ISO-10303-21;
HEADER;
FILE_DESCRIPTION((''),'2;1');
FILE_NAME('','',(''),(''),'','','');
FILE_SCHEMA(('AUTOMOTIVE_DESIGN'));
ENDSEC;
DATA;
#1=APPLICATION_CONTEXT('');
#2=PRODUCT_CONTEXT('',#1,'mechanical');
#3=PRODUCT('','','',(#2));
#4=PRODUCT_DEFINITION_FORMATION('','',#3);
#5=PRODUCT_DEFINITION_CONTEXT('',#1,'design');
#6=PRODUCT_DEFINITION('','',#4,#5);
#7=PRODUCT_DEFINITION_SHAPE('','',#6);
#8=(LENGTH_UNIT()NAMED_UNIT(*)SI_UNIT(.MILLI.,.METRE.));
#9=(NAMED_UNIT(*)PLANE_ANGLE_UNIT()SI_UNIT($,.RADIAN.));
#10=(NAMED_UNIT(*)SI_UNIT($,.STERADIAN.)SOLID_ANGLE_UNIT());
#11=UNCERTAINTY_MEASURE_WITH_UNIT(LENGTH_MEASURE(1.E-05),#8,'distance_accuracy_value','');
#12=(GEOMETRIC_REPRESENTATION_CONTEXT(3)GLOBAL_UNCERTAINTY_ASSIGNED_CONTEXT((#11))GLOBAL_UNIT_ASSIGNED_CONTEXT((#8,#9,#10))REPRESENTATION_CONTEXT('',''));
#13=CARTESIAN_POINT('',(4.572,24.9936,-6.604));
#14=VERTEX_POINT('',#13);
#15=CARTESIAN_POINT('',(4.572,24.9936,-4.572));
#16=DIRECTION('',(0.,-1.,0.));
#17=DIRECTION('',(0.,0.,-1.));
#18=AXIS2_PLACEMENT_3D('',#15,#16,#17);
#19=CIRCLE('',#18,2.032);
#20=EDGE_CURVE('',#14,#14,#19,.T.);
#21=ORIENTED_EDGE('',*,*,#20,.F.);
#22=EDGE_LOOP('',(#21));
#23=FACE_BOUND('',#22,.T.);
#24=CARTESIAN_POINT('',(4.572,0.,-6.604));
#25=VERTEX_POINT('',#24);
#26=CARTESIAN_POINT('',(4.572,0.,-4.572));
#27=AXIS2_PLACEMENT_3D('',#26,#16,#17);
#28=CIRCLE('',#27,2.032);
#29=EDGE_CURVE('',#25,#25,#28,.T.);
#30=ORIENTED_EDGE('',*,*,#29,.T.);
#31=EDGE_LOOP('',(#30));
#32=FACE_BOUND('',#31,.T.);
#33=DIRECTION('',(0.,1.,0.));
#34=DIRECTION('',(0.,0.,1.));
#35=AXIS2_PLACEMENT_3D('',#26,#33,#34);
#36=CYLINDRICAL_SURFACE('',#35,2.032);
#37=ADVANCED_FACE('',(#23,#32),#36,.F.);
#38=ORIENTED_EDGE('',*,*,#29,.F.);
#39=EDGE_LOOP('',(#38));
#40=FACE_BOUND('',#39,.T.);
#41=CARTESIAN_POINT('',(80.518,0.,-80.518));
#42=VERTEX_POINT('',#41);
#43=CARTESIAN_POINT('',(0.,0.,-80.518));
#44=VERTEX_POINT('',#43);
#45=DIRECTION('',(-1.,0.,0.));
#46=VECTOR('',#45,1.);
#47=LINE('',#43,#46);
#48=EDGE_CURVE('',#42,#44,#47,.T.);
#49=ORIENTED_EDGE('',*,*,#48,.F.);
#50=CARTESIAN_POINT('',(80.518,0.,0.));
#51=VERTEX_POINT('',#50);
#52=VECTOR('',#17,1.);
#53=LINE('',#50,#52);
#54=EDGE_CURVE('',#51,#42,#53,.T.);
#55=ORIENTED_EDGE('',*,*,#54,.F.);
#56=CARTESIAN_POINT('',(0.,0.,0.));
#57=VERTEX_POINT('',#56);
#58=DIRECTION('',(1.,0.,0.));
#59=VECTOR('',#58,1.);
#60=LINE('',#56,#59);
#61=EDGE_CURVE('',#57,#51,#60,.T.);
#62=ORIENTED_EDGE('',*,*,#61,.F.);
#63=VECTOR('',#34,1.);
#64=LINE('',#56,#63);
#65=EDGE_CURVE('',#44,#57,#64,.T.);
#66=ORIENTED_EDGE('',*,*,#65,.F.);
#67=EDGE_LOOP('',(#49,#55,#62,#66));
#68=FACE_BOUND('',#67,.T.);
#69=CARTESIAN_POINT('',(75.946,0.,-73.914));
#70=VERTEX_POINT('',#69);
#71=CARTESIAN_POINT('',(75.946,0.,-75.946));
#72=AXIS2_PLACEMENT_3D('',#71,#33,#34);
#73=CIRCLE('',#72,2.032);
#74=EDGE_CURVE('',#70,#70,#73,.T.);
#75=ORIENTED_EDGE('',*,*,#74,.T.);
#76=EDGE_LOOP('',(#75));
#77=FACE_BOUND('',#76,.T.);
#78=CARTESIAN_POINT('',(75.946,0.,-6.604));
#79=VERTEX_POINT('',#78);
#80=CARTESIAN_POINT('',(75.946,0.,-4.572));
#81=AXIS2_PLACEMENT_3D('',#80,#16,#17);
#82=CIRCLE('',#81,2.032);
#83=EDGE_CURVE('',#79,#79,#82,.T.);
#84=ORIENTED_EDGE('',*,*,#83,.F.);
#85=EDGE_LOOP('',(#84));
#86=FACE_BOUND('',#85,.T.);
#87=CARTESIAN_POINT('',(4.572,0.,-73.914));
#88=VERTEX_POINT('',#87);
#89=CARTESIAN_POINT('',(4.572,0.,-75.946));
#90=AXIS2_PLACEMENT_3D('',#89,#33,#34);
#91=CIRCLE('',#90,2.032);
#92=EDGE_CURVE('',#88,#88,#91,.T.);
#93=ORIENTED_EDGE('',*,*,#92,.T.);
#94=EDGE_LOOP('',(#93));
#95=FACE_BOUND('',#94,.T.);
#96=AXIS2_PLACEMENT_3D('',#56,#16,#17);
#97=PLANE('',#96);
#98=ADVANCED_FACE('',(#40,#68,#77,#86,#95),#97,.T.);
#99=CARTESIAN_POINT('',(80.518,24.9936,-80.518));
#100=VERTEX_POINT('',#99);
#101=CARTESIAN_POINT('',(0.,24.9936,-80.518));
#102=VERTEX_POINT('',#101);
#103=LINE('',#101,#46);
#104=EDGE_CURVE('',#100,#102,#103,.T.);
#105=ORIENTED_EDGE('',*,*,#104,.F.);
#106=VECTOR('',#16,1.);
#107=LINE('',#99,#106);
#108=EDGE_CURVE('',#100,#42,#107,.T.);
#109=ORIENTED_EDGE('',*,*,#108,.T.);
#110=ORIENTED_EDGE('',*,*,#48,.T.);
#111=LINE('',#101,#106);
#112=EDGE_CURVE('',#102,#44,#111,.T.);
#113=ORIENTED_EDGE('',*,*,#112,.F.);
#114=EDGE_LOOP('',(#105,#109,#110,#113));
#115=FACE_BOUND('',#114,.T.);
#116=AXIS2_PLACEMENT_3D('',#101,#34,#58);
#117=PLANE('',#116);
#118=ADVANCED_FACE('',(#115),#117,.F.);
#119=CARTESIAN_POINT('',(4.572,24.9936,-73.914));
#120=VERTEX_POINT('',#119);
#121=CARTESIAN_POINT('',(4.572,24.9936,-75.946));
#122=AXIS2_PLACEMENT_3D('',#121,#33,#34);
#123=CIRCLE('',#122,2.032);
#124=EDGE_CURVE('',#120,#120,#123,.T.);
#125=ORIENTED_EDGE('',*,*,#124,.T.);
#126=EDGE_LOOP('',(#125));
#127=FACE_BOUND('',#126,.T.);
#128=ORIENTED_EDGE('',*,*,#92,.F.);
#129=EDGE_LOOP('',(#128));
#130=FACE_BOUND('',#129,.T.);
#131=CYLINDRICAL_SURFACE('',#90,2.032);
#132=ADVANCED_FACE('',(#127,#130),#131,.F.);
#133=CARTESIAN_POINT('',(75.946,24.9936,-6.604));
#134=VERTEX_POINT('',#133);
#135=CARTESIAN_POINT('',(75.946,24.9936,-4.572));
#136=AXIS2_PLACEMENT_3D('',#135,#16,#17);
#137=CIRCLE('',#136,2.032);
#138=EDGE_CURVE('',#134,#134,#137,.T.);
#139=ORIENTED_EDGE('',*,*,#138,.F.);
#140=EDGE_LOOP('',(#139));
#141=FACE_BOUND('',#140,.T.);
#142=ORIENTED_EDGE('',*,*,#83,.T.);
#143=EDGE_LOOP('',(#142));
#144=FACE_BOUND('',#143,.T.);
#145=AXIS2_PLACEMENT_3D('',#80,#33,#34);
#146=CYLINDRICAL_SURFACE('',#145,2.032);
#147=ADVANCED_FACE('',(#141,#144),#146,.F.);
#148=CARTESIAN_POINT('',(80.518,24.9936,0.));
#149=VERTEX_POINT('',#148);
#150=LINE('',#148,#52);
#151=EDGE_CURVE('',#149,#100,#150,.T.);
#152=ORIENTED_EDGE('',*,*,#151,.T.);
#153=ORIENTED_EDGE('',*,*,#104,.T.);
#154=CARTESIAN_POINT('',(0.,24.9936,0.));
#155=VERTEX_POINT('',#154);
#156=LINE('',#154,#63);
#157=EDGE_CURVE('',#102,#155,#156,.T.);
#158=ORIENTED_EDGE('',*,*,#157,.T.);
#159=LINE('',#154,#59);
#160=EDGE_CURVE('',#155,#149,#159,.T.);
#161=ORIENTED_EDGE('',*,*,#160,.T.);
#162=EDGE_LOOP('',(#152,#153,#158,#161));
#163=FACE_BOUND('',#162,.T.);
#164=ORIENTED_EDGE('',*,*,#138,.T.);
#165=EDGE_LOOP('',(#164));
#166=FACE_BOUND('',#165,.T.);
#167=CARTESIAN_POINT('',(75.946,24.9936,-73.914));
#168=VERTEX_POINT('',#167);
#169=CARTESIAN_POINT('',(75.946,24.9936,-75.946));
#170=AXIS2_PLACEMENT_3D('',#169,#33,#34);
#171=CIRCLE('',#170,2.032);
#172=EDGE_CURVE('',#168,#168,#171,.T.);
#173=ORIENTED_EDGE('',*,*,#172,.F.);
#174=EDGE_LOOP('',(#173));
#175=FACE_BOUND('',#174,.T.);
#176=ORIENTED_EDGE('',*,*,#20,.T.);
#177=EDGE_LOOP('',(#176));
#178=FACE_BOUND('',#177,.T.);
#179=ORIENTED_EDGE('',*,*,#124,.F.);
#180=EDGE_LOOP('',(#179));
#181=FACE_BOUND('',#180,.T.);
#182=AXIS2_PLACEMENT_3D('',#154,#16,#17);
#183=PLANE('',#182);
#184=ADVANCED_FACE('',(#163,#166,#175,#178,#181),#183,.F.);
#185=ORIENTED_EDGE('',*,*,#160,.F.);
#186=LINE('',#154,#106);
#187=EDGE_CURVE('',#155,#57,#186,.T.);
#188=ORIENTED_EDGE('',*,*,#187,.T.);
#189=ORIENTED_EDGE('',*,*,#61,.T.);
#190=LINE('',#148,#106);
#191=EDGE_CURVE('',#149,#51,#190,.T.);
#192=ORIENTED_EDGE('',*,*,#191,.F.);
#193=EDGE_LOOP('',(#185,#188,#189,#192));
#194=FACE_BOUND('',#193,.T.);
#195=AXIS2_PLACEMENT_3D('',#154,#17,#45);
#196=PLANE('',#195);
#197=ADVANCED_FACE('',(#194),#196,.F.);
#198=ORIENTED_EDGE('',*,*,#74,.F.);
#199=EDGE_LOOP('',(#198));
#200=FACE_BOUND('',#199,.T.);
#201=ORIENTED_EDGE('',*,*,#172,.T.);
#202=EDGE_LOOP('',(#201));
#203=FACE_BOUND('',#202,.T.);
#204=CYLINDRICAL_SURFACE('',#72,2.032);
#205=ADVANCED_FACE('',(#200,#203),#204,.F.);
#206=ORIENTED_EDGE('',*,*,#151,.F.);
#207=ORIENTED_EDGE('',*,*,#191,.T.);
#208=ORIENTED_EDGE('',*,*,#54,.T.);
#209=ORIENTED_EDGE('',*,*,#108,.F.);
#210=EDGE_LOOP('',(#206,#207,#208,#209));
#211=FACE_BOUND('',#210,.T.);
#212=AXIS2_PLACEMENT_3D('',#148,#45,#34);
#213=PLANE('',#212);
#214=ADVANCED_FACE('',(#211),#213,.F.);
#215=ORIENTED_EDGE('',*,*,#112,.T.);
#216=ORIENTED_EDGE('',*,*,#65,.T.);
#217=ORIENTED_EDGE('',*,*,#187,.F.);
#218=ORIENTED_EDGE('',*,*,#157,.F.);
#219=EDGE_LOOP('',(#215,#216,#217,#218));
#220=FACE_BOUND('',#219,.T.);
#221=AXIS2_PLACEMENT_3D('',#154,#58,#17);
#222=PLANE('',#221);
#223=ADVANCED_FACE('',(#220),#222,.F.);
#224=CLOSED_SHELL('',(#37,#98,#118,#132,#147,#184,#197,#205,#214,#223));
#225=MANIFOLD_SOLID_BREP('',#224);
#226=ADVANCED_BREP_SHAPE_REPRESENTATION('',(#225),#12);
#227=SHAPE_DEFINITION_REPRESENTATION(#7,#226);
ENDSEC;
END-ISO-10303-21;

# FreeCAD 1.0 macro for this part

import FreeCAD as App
import Part
import Sketcher
Q = App.Units.Quantity


def add_polygon(sketch, points):
    """Adds a closed chain of lines whose ends are joined by coincident constraints."""
    first, n = sketch.GeometryCount, len(points)
    for a, b in zip(points, points[1:] + points[:1]):
        sketch.addGeometry(Part.LineSegment(App.Vector(*a, 0), App.Vector(*b, 0)), False)
    for i in range(n):
        sketch.addConstraint(Sketcher.Constraint("Coincident", first + i, 2, first + (i + 1) % n, 1))

doc = App.newDocument("Part")
body = doc.addObject("PartDesign::Body", "Body")

# Sketch on XZ plane
sketch1 = doc.addObject("Sketcher::SketchObject", "Sketch")
body.addObject(sketch1)
sketch1.AttachmentSupport = (doc.XZ_Plane, [""])
sketch1.MapMode = "FlatFace"
add_polygon(sketch1, [(0, -80.518), (0, 0), (80.518, 0), (80.518, -80.518)])  # lines 0-3
sketch1.addConstraint(Sketcher.Constraint("Vertical", 0))
sketch1.addConstraint(Sketcher.Constraint("Horizontal", 1))
sketch1.addConstraint(Sketcher.Constraint("Vertical", 2))
sketch1.addConstraint(Sketcher.Constraint("Horizontal", 3))
sketch1.addConstraint(Sketcher.Constraint("Coincident", 0, 2, -1, 1))
sketch1.addConstraint(Sketcher.Constraint("Equal", 3, 0))
sketch1.addConstraint(Sketcher.Constraint("DistanceX", 1, 1, 1, 2, Q("3.17 in")))
pad1 = doc.addObject("PartDesign::Pad", "Pad")
body.addObject(pad1)
pad1.Profile = sketch1
pad1.Length = Q("0.984 in")
pad1.Reversed = True

# Sketch on XZ plane
sketch2 = doc.addObject("Sketcher::SketchObject", "Sketch001")
body.addObject(sketch2)
sketch2.AttachmentSupport = (doc.XZ_Plane, [""])
sketch2.MapMode = "FlatFace"
sketch2.AttachmentOffset = App.Placement(App.Vector(0, 0, -0.984 * 25.4), App.Rotation())
sketch2.addGeometry(Part.Circle(App.Vector(4.572, -75.946, 0), App.Vector(0, 0, 1), 2.032), False)
sketch2.addGeometry(Part.Circle(App.Vector(75.946, -75.946, 0), App.Vector(0, 0, 1), 2.032), False)
sketch2.addConstraint(Sketcher.Constraint("Equal", 0, 1))
sketch2.addConstraint(Sketcher.Constraint("Horizontal", 0, 3, 1, 3))
sketch2.addConstraint(Sketcher.Constraint("Diameter", 0, Q("0.16 in")))
sketch2.addConstraint(Sketcher.Constraint("DistanceX", -1, 1, 0, 3, Q("0.18 in")))
sketch2.addConstraint(Sketcher.Constraint("DistanceY", 0, 3, -1, 1, Q("2.99 in")))
sketch2.addConstraint(Sketcher.Constraint("DistanceX", -1, 1, 1, 3, Q("2.99 in")))
pocket1 = doc.addObject("PartDesign::Pocket", "Pocket")
body.addObject(pocket1)
pocket1.Profile = sketch2
pocket1.Type = "ThroughAll"
pocket1.Reversed = True
doc.recompute()

datumplane = doc.addObject("PartDesign::Plane", "DatumPlane")
body.addObject(datumplane)
datumplane.AttachmentSupport = (doc.XY_Plane, [""])
datumplane.MapMode = "FlatFace"
datumplane.AttachmentOffset = App.Placement(App.Vector(0, 0, -1.585 * 25.4), App.Rotation())
mirrored = doc.addObject("PartDesign::Mirrored", "Mirrored")
body.addObject(mirrored)
mirrored.Originals = [pocket1]
mirrored.MirrorPlane = (datumplane, [""])
body.Tip = mirrored

doc.recompute()
